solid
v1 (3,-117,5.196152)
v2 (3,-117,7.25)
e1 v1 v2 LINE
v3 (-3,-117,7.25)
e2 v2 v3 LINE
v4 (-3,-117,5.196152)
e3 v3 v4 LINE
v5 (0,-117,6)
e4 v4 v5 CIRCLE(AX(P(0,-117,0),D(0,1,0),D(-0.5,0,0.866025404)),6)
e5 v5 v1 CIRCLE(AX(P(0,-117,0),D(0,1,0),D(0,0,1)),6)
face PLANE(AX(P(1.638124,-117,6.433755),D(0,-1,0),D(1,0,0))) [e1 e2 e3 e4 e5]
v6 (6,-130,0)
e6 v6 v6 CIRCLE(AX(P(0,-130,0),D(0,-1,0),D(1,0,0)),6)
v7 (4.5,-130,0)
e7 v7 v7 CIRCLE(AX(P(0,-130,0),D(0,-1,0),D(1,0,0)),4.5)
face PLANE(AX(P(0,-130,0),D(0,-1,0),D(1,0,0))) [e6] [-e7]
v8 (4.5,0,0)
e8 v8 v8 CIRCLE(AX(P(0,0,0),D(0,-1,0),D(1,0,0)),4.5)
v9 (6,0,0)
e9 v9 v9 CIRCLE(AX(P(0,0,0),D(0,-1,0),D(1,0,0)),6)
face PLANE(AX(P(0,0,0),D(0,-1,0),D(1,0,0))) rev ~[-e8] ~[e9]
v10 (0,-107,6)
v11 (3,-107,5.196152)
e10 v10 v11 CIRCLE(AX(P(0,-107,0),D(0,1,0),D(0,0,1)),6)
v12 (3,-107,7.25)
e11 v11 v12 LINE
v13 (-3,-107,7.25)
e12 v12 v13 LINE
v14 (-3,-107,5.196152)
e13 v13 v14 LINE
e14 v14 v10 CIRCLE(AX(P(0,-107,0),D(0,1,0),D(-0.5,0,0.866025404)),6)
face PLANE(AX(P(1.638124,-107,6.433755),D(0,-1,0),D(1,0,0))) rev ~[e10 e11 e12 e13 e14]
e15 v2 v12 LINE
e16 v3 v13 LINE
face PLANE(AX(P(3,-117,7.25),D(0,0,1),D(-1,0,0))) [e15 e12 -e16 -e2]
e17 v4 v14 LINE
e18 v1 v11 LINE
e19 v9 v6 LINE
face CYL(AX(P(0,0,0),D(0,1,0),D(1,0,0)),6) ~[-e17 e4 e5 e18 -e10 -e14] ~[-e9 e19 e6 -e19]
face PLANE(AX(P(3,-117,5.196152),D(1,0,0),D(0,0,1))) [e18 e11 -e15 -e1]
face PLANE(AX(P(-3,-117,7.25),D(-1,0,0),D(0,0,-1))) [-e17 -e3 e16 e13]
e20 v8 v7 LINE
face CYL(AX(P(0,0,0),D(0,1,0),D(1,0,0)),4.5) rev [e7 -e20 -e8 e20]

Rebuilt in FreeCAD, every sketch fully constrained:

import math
import FreeCAD as App
import Part
import Sketcher

doc = App.newDocument("Part")
body = doc.addObject("PartDesign::Body", "Body")

sketch1 = body.newObject("Sketcher::SketchObject", "Sketch")
sketch1.AttachmentSupport = (doc.getObject("XZ_Plane"), [""])
sketch1.MapMode = "FlatFace"
sketch1.addGeometry([
    Part.Circle(App.Vector(0, 0, 0), App.Vector(0, 0, 1), 6),
    Part.Circle(App.Vector(0, 0, 0), App.Vector(0, 0, 1), 4.5),
], False)
sketch1.addConstraint([
    Sketcher.Constraint("Coincident", 0, 3, -1, 1),
    Sketcher.Constraint("Coincident", 1, 3, -1, 1),
    Sketcher.Constraint("Diameter", 0, 12.0),
    Sketcher.Constraint("Diameter", 1, 9.0),
])
pad1 = body.newObject("PartDesign::Pad", "Pad")
pad1.Profile = sketch1
pad1.Length = 130

sketch2 = body.newObject("Sketcher::SketchObject", "Sketch001")
sketch2.AttachmentSupport = (doc.getObject("XZ_Plane"), [""])
sketch2.MapMode = "FlatFace"
sketch2.AttachmentOffset = App.Placement(App.Vector(0, 0, 117), App.Rotation())
sketch2.addGeometry([
    Part.LineSegment(App.Vector(3, 5.2, 0), App.Vector(3, 7.2, 0)),
    Part.LineSegment(App.Vector(3, 7.2, 0), App.Vector(-3, 7.2, 0)),
    Part.LineSegment(App.Vector(-3, 7.2, 0), App.Vector(-3, 5.2, 0)),
    Part.ArcOfCircle(Part.Circle(App.Vector(0, 0, 0), App.Vector(0, 0, 1), 6), math.radians(90), math.radians(120)),
    Part.ArcOfCircle(Part.Circle(App.Vector(0, 0, 0), App.Vector(0, 0, 1), 6), math.radians(60), math.radians(90)),
], False)
sketch2.addConstraint([
    Sketcher.Constraint("Coincident", 0, 2, 1, 1),
    Sketcher.Constraint("Coincident", 1, 2, 2, 1),
    Sketcher.Constraint("Coincident", 2, 2, 3, 2),
    Sketcher.Constraint("Tangent", 3, 1, 4, 2),
    Sketcher.Constraint("Coincident", 4, 1, 0, 1),
    Sketcher.Constraint("Vertical", 0),
    Sketcher.Constraint("Horizontal", 1),
    Sketcher.Constraint("Vertical", 2),
    Sketcher.Constraint("Coincident", 3, 3, -1, 1),
    Sketcher.Constraint("Equal", 3, 4),
    Sketcher.Constraint("PointOnObject", 3, 1, -2),
    Sketcher.Constraint("Horizontal", 2, 2, 4, 1),
    Sketcher.Constraint("Radius", 3, 6.0),
    Sketcher.Constraint("DistanceX", 1, 2, 1, 1, 6.0),
    Sketcher.Constraint("DistanceY", -1, 1, 0, 2, 7.25),
])
pad2 = body.newObject("PartDesign::Pad", "Pad001")
pad2.Profile = sketch2
pad2.Length = 10
pad2.Reversed = True

doc.recompute()
